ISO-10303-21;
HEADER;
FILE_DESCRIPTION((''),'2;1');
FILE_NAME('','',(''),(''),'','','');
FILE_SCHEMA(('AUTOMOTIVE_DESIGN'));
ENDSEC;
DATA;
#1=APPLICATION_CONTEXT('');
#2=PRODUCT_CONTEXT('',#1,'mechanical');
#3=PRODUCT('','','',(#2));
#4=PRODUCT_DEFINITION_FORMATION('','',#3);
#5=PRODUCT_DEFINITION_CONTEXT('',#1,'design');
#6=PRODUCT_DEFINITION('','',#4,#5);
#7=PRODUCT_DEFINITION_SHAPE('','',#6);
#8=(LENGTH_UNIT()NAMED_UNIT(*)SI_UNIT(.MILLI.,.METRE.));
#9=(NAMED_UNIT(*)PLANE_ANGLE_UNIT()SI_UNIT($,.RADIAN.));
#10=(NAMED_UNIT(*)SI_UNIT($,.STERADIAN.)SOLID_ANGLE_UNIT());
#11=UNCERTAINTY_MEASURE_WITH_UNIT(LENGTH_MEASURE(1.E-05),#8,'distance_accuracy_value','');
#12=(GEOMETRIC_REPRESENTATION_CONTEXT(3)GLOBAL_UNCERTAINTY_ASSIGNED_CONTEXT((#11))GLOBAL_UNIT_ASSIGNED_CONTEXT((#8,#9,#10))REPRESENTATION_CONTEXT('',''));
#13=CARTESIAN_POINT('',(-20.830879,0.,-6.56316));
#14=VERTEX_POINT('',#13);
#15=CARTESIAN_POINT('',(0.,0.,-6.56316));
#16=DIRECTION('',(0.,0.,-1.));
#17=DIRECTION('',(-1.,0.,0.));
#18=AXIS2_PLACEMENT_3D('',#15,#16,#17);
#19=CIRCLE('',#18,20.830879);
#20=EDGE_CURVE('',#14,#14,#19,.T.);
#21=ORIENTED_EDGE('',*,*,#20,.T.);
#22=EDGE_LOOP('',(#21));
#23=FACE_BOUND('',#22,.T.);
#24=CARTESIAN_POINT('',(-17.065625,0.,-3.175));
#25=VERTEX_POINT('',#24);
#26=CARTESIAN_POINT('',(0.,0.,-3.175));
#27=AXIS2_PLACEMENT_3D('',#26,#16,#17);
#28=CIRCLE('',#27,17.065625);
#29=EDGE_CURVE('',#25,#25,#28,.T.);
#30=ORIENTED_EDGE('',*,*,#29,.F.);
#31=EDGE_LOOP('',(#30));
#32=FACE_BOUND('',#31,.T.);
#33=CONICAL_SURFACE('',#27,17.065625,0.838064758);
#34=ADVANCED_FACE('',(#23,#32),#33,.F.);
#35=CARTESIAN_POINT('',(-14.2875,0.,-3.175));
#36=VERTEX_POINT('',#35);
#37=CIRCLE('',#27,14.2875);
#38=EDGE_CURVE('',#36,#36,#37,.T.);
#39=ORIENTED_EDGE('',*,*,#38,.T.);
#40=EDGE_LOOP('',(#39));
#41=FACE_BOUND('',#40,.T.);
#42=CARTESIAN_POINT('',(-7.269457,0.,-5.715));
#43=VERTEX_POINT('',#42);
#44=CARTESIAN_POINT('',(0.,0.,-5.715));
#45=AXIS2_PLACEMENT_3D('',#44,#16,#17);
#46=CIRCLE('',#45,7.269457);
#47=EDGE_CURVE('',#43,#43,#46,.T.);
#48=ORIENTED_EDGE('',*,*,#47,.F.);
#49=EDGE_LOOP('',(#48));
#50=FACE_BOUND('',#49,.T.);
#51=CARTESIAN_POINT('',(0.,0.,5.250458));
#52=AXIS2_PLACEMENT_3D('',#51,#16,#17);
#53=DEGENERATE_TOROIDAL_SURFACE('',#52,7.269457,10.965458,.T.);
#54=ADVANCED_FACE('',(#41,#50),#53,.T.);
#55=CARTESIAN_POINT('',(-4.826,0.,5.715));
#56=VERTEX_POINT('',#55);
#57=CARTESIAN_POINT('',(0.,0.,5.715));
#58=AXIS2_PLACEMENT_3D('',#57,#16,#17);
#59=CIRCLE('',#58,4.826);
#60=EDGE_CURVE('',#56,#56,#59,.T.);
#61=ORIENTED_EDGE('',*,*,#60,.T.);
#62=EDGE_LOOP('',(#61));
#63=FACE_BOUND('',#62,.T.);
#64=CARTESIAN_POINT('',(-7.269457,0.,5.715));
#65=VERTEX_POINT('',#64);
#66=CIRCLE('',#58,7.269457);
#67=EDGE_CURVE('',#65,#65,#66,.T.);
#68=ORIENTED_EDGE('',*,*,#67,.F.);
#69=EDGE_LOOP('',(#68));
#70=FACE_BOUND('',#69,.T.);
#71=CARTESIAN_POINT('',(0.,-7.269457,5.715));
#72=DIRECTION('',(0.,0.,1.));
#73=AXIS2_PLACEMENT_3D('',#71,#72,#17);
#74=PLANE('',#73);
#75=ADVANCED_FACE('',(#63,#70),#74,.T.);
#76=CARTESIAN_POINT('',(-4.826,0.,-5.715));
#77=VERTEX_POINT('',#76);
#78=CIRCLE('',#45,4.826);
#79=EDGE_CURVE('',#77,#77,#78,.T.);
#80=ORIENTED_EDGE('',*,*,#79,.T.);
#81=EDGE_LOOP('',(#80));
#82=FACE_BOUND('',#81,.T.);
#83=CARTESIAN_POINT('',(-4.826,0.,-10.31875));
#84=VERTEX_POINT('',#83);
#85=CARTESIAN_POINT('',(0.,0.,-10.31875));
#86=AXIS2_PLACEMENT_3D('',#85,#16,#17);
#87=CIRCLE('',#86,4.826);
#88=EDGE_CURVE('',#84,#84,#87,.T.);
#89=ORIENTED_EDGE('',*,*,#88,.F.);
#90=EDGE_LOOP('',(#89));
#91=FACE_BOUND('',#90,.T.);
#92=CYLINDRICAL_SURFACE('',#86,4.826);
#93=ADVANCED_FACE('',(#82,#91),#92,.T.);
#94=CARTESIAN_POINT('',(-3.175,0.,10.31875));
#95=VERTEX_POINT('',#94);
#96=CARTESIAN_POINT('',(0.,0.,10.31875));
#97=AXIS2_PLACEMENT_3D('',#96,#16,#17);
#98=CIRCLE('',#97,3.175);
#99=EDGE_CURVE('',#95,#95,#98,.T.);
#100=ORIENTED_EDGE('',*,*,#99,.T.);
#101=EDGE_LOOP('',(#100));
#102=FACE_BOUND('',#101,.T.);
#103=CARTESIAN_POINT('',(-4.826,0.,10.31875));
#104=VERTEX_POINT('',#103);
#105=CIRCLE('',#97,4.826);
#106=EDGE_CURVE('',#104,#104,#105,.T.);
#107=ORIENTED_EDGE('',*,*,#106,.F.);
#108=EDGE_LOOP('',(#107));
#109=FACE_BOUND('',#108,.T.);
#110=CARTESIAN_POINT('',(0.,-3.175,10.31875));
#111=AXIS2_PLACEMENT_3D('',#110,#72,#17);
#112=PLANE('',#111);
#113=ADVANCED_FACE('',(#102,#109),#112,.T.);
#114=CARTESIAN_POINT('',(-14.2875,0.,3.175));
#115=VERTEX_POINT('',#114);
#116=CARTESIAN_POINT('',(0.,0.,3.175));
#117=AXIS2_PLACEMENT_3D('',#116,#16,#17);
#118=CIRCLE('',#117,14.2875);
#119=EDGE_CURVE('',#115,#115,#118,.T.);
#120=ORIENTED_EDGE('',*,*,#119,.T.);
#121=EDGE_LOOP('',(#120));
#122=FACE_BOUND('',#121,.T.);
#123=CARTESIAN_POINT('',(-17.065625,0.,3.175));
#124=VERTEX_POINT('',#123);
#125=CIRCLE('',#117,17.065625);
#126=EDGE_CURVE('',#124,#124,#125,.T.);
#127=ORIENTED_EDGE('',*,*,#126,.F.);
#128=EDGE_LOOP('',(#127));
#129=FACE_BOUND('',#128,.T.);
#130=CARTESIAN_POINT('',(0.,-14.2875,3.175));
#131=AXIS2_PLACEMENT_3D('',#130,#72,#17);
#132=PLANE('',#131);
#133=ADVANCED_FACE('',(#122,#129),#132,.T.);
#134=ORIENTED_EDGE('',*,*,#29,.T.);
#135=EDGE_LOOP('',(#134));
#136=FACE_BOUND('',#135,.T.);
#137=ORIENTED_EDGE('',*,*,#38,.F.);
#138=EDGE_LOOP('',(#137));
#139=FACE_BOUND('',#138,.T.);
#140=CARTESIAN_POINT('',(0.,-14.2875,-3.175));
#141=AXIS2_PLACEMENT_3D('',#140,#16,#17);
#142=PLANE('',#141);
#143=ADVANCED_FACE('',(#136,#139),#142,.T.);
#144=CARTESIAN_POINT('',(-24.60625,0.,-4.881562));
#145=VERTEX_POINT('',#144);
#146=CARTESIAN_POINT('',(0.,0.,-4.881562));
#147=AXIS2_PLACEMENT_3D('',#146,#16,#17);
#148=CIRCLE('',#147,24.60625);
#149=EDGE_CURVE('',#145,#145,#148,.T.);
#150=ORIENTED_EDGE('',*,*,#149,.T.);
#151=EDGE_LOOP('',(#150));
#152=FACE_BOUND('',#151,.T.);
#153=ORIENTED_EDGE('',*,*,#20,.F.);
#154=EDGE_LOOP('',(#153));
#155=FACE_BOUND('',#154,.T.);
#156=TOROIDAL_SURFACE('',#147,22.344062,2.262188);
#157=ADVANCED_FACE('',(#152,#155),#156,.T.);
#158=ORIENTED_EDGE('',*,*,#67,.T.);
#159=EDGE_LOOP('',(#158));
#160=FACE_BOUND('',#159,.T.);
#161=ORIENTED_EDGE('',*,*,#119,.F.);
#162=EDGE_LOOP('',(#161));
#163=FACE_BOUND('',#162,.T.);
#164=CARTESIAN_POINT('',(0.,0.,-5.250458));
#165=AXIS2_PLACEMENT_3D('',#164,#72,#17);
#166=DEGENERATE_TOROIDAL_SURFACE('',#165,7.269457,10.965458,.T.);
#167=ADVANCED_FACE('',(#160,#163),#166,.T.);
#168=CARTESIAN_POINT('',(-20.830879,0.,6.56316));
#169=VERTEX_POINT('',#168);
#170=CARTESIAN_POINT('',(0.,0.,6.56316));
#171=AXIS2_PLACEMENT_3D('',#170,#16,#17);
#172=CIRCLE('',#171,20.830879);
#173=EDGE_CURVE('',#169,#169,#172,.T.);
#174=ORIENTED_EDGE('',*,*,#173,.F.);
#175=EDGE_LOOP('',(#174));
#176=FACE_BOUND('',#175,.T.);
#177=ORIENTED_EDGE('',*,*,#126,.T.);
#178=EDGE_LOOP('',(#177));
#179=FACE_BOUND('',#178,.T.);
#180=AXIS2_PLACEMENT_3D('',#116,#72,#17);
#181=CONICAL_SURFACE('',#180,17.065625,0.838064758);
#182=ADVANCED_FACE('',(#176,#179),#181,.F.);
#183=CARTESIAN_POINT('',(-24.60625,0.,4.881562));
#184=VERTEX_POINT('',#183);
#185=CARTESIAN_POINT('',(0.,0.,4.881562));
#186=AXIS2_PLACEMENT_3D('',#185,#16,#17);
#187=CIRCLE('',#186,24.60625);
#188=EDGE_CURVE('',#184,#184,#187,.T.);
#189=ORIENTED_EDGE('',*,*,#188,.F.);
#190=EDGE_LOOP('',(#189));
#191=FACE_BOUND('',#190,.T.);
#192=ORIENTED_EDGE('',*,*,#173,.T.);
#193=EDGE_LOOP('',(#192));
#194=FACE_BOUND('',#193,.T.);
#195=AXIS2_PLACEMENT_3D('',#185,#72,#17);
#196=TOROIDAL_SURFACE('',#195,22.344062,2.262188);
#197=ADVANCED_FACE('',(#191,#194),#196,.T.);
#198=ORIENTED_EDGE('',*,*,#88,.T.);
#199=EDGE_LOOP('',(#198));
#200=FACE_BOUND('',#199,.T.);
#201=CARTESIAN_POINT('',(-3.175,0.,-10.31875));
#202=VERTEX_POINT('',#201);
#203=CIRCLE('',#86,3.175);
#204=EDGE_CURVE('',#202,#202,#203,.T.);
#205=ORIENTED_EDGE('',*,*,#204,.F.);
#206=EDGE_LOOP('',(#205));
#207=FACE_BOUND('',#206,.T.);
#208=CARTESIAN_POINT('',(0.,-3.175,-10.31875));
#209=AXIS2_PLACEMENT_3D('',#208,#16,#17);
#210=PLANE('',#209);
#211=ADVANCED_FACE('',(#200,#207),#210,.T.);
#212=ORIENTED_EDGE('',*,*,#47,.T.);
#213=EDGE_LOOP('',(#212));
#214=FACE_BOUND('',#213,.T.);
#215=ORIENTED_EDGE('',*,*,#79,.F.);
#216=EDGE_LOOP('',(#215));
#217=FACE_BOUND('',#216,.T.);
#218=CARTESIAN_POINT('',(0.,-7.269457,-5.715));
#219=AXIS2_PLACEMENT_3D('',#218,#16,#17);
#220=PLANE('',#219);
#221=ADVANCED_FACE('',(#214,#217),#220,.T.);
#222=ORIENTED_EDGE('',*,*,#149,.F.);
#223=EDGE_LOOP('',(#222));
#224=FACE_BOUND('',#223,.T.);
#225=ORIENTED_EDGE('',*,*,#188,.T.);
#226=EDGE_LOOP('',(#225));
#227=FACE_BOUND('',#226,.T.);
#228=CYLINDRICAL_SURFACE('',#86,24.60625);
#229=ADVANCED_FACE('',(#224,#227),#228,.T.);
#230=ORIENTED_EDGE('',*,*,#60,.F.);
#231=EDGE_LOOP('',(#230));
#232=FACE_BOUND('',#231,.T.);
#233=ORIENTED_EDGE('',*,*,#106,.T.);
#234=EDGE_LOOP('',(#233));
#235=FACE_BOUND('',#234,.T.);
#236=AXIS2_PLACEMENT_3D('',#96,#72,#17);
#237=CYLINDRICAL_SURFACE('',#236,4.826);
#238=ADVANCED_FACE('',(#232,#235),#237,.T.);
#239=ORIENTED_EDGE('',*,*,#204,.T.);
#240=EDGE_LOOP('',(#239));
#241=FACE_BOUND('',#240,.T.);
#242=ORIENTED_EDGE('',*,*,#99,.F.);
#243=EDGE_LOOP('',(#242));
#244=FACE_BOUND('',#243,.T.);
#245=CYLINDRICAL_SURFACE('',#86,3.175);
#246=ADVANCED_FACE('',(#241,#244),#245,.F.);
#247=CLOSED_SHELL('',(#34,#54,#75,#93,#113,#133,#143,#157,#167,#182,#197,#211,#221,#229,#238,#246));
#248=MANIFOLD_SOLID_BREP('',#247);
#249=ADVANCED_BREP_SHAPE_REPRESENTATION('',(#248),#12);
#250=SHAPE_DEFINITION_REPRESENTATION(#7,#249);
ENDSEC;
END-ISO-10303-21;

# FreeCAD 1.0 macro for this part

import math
import FreeCAD as App
import Part
import Sketcher

V = App.Vector
Q = App.Units.Quantity

doc = App.newDocument("Part")
params = doc.addObject("Spreadsheet::Sheet", "Params")
for row, (alias, value) in enumerate([
    ("sketch1_width", "0.84375 in"),
    ("sketch1_width2", "0.065 in"),
    ("sketch1_width3", "0.109375 in"),
    ("sketch1_height", "0.40625 in"),
    ("revolution_angle", "360 deg"),
], start=1):
    params.set(f"A{row}", alias)
    params.set(f"B{row}", "=" + value)
    params.setAlias(f"B{row}", alias)

body = doc.addObject("PartDesign::Body", "Body")

# Sketch on YZ plane
sketch1 = body.newObject("Sketcher::SketchObject", "Sketch")
sketch1.AttachmentSupport = (doc.getObject("YZ_Plane"), [""])
sketch1.MapMode = "FlatFace"
sketch1.addGeometry([
    Part.LineSegment(V(24.60625, -4.881563, 0), V(24.60625, 0, 0)),  # 0
    Part.LineSegment(V(24.60625, 0, 0), V(3.175, 0, 0)),  # 1
    Part.LineSegment(V(3.175, 0, 0), V(3.175, -10.31875, 0)),  # 2
    Part.LineSegment(V(3.175, -10.31875, 0), V(4.826, -10.31875, 0)),  # 3
    Part.LineSegment(V(4.826, -10.31875, 0), V(4.826, -5.715, 0)),  # 4
    Part.LineSegment(V(4.826, -5.715, 0), V(7.269457, -5.715, 0)),  # 5
    Part.ArcOfCircle(Part.Circle(V(7.269457, 5.250458, 0), V(0, 0, 1), 10.965458), math.radians(-90), math.radians(-50.207161)),  # 6
    Part.LineSegment(V(14.2875, -3.175, 0), V(17.065625, -3.175, 0)),  # 7
    Part.LineSegment(V(17.065625, -3.175, 0), V(20.830879, -6.56316, 0)),  # 8
    Part.ArcOfCircle(Part.Circle(V(22.344062, -4.881563, 0), V(0, 0, 1), 2.262188), math.radians(-131.982426), math.radians(0)),  # 9
], False)
sketch1.addConstraint([
    Sketcher.Constraint("Coincident", 0, 2, 1, 1),
    Sketcher.Constraint("Coincident", 1, 2, 2, 1),
    Sketcher.Constraint("Coincident", 2, 2, 3, 1),
    Sketcher.Constraint("Coincident", 3, 2, 4, 1),
    Sketcher.Constraint("Coincident", 4, 2, 5, 1),
    Sketcher.Constraint("Tangent", 5, 2, 6, 1),
    Sketcher.Constraint("Coincident", 6, 2, 7, 1),
    Sketcher.Constraint("Coincident", 7, 2, 8, 1),
    Sketcher.Constraint("Tangent", 8, 2, 9, 1),
    Sketcher.Constraint("Tangent", 9, 2, 0, 1),
    Sketcher.Constraint("Vertical", 0),
    Sketcher.Constraint("Horizontal", 1),
    Sketcher.Constraint("Vertical", 2),
    Sketcher.Constraint("Horizontal", 3),
    Sketcher.Constraint("Vertical", 4),
    Sketcher.Constraint("Horizontal", 5),
    Sketcher.Constraint("Horizontal", 7),
    Sketcher.Constraint("PointOnObject", 0, 2, -1),
    Sketcher.Constraint("DistanceY", 5, 2, 6, 2, Q("0.1 in")),
    Sketcher.Constraint("DistanceX", 1, 2, 1, 1, Q("0.84375 in")),
    Sketcher.Constraint("DistanceX", 3, 1, 3, 2, Q("0.065 in")),
    Sketcher.Constraint("DistanceX", 7, 1, 7, 2, Q("0.109375 in")),
    Sketcher.Constraint("DistanceY", 2, 2, 2, 1, Q("0.40625 in")),
    Sketcher.Constraint("DistanceX", -1, 1, 3, 2, Q("0.19 in")),
    Sketcher.Constraint("DistanceY", 4, 2, -1, 1, Q("0.225 in")),
    Sketcher.Constraint("DistanceX", -1, 1, 6, 2, Q("0.5625 in")),
    Sketcher.Constraint("Radius", 6, Q("10.965458 mm")),
    Sketcher.Constraint("Radius", 9, Q("2.262188 mm")),
    Sketcher.Constraint("Distance", 8, Q("5.065251 mm")),
])
sketch1.setExpression("Constraints[19]", "Params.sketch1_width")
sketch1.setExpression("Constraints[20]", "Params.sketch1_width2")
sketch1.setExpression("Constraints[21]", "Params.sketch1_width3")
sketch1.setExpression("Constraints[22]", "Params.sketch1_height")
revolution = body.newObject("PartDesign::Revolution", "Revolution")
revolution.Profile = sketch1
revolution.ReferenceAxis = (sketch1, ["V_Axis"])
revolution.setExpression("Angle", "Params.revolution_angle")
body2 = doc.addObject("PartDesign::Body", "Body001")
doc.recompute()

body2.BaseFeature = body
doc.recompute()

mirroring = doc.addObject("Part::Mirroring", "Mirroring")
mirroring.Source = body
mirroring.Base = V(0, 0, 0)
mirroring.Normal = V(0, 0, 1)
body3 = doc.addObject("PartDesign::Body", "Body002")
body3.BaseFeature = mirroring
boolean = body2.newObject("PartDesign::Boolean", "Boolean")
boolean.Type = "Fuse"
boolean.addObjects([body3])
doc.recompute()
mirroring.Visibility = False

doc.recompute()
